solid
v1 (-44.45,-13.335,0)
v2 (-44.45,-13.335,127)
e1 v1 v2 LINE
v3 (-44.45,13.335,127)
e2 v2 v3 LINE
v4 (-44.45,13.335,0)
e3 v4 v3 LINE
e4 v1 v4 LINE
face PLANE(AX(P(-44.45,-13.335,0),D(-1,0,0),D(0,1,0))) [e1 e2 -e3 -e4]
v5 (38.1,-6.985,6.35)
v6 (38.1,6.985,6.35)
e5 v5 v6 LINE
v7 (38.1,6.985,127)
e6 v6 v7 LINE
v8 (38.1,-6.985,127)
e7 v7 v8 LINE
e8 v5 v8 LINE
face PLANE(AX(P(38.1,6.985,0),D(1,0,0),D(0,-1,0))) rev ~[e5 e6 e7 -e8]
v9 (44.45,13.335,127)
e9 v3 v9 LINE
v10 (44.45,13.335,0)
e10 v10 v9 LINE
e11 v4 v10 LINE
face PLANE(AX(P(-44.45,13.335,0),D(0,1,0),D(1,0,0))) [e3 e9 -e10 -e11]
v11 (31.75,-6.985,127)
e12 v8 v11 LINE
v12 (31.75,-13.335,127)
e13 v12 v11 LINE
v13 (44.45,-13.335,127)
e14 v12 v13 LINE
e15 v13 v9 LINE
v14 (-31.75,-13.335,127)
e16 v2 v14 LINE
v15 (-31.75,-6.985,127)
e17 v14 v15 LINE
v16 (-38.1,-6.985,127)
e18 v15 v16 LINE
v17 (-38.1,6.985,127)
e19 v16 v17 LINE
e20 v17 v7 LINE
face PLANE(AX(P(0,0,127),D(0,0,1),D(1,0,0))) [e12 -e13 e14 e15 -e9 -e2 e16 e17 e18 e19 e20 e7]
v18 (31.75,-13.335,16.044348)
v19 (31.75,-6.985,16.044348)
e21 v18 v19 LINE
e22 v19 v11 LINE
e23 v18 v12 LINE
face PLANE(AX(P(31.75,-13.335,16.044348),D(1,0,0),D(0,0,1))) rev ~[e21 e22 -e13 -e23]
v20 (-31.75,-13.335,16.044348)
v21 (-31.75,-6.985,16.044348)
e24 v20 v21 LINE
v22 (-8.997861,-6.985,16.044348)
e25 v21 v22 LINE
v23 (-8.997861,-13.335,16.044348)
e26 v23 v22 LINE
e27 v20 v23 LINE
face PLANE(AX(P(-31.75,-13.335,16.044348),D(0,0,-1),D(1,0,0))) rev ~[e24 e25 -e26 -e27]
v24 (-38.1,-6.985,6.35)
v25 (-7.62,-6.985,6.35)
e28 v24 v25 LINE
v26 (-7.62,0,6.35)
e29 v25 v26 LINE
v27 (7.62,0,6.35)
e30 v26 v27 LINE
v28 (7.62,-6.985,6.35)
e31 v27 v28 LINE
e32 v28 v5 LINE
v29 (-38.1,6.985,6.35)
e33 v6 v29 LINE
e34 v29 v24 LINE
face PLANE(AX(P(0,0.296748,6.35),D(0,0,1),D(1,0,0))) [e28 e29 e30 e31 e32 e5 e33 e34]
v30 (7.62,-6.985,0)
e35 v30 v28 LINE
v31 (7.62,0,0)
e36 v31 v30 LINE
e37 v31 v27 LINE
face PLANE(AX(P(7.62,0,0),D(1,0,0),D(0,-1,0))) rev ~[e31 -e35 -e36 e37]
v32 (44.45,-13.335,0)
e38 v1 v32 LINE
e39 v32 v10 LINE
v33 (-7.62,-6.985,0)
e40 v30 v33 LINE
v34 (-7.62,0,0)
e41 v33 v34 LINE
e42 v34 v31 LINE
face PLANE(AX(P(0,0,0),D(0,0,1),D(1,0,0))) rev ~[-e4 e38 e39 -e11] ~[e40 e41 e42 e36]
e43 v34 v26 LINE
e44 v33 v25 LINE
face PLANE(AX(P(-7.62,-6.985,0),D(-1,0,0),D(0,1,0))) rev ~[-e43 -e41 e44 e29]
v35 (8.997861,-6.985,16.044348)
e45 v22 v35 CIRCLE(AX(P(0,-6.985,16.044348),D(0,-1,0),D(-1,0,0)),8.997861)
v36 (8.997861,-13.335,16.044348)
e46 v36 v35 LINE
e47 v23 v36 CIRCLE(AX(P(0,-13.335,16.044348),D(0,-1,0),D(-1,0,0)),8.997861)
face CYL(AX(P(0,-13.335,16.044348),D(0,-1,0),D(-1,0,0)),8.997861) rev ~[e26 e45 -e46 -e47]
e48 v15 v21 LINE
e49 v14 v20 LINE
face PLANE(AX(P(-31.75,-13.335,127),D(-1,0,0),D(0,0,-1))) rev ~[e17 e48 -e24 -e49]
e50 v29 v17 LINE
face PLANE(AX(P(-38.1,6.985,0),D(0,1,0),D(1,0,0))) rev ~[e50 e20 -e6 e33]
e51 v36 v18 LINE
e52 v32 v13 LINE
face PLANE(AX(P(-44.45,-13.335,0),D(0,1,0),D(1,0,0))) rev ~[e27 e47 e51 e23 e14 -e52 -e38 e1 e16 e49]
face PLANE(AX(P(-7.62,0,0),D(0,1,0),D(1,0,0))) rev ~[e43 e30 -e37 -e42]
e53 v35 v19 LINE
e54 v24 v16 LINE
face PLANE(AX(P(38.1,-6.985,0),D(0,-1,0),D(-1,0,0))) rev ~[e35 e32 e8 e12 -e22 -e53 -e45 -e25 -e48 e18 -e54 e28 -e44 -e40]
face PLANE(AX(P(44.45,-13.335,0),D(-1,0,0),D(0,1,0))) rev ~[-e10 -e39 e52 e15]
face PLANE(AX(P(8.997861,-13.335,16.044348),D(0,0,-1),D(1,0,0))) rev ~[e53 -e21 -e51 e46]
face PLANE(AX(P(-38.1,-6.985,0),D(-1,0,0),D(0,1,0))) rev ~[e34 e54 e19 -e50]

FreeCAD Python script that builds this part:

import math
import FreeCAD as App
import Part
import Sketcher
Q = App.Units.Quantity


def add_polygon(sketch, points):
    """Adds a closed chain of lines whose ends are joined by coincident constraints."""
    first, n = sketch.GeometryCount, len(points)
    for a, b in zip(points, points[1:] + points[:1]):
        sketch.addGeometry(Part.LineSegment(App.Vector(*a, 0), App.Vector(*b, 0)), False)
    for i in range(n):
        sketch.addConstraint(Sketcher.Constraint("Coincident", first + i, 2, first + (i + 1) % n, 1))

doc = App.newDocument("Part")
body = doc.addObject("PartDesign::Body", "Body")

# Sketch on XY plane
sketch1 = body.newObject("Sketcher::SketchObject", "Sketch")
sketch1.AttachmentSupport = (doc.getObject("XY_Plane"), [""])
sketch1.MapMode = "FlatFace"
add_polygon(sketch1, [(38.1, -6.985), (38.1, 6.985), (-38.1, 6.985), (-38.1, -6.985), (-7.62, -6.985), (-7.62, 0), (7.62, 0), (7.62, -6.985)])  # lines 0-7
sketch1.addConstraint([
    Sketcher.Constraint("Vertical", 0),
    Sketcher.Constraint("Horizontal", 1),
    Sketcher.Constraint("Vertical", 2),
    Sketcher.Constraint("Horizontal", 3),
    Sketcher.Constraint("Vertical", 4),
    Sketcher.Constraint("Horizontal", 5),
    Sketcher.Constraint("Vertical", 6),
    Sketcher.Constraint("Horizontal", 7),
    Sketcher.Constraint("Symmetric", 0, 2, 2, 2, -1, 1),
    Sketcher.Constraint("Symmetric", 4, 2, 5, 2, -1, 1),
    Sketcher.Constraint("Horizontal", 3, 2, 6, 2),
    Sketcher.Constraint("DistanceX", 1, 2, 1, 1, Q("3 in")),
    Sketcher.Constraint("DistanceX", 3, 1, 3, 2, Q("1.2 in")),
    Sketcher.Constraint("DistanceY", 0, 1, 0, 2, Q("0.55 in")),
])
pad1 = body.newObject("PartDesign::Pad", "Pad")
pad1.Profile = sketch1
pad1.Length = Q("0.25 in")

# Sketch on XY plane
sketch2 = body.newObject("Sketcher::SketchObject", "Sketch001")
sketch2.AttachmentSupport = (doc.getObject("XY_Plane"), [""])
sketch2.MapMode = "FlatFace"
add_polygon(sketch2, [(-44.45, 13.335), (-44.45, -13.335), (44.45, -13.335), (44.45, 13.335)])  # lines 0-3
add_polygon(sketch2, [(-38.1, -6.985), (-38.1, 6.985), (38.1, 6.985), (38.1, -6.985)])  # lines 4-7
sketch2.addConstraint([
    Sketcher.Constraint("Vertical", 0),
    Sketcher.Constraint("Horizontal", 1),
    Sketcher.Constraint("Vertical", 2),
    Sketcher.Constraint("Horizontal", 3),
    Sketcher.Constraint("Vertical", 4),
    Sketcher.Constraint("Horizontal", 5),
    Sketcher.Constraint("Vertical", 6),
    Sketcher.Constraint("Horizontal", 7),
    Sketcher.Constraint("Symmetric", 0, 2, 2, 2, -1, 1),
    Sketcher.Constraint("Symmetric", 4, 2, 6, 2, -1, 1),
    Sketcher.Constraint("DistanceX", 5, 1, 5, 2, Q("3 in")),
    Sketcher.Constraint("DistanceX", 1, 1, 1, 2, Q("3.5 in")),
    Sketcher.Constraint("DistanceY", 0, 2, 0, 1, Q("1.05 in")),
    Sketcher.Constraint("DistanceY", 4, 1, 4, 2, Q("0.55 in")),
])
pad2 = body.newObject("PartDesign::Pad", "Pad001")
pad2.Profile = sketch2
pad2.Length = Q("5 in")

# Sketch on XZ plane
sketch3 = body.newObject("Sketcher::SketchObject", "Sketch002")
sketch3.AttachmentSupport = (doc.getObject("XZ_Plane"), [""])
sketch3.MapMode = "FlatFace"
sketch3.AttachmentOffset = App.Placement(App.Vector(0, 0, 0.525 * 25.4), App.Rotation())
sketch3.addGeometry([
    Part.LineSegment(App.Vector(31.75, 127, 0), App.Vector(-31.75, 127, 0)),  # 0
    Part.LineSegment(App.Vector(-31.75, 127, 0), App.Vector(-31.75, 16.044348, 0)),  # 1
    Part.LineSegment(App.Vector(-31.75, 16.044348, 0), App.Vector(-8.997861, 16.044348, 0)),  # 2
    Part.ArcOfCircle(Part.Circle(App.Vector(0, 16.044348, 0), App.Vector(0, 0, 1), 8.997861), math.radians(180), math.radians(360)),  # 3
    Part.LineSegment(App.Vector(8.997861, 16.044348, 0), App.Vector(31.75, 16.044348, 0)),  # 4
    Part.LineSegment(App.Vector(31.75, 16.044348, 0), App.Vector(31.75, 127, 0)),  # 5
], False)
sketch3.addConstraint([
    Sketcher.Constraint("Coincident", 0, 2, 1, 1),
    Sketcher.Constraint("Coincident", 1, 2, 2, 1),
    Sketcher.Constraint("Coincident", 2, 2, 3, 1),
    Sketcher.Constraint("Coincident", 3, 2, 4, 1),
    Sketcher.Constraint("Coincident", 4, 2, 5, 1),
    Sketcher.Constraint("Coincident", 5, 2, 0, 1),
    Sketcher.Constraint("Horizontal", 0),
    Sketcher.Constraint("Vertical", 1),
    Sketcher.Constraint("Horizontal", 2),
    Sketcher.Constraint("Horizontal", 4),
    Sketcher.Constraint("Vertical", 5),
    Sketcher.Constraint("Symmetric", 2, 2, 3, 2, -2),
    Sketcher.Constraint("Horizontal", 3, 3, 1, 2),
    Sketcher.Constraint("Equal", 2, 4),
    Sketcher.Constraint("DistanceX", 0, 2, 0, 1, Q("2.5 in")),
    Sketcher.Constraint("DistanceY", -1, 1, 0, 2, Q("5 in")),
    Sketcher.Constraint("Radius", 3, Q("8.997861 mm")),
    Sketcher.Constraint("DistanceY", 1, 2, 1, 1, Q("110.955652 mm")),
])
pocket1 = body.newObject("PartDesign::Pocket", "Pocket")
pocket1.Profile = sketch3
pocket1.Length = Q("0.25 in")

doc.recompute()
